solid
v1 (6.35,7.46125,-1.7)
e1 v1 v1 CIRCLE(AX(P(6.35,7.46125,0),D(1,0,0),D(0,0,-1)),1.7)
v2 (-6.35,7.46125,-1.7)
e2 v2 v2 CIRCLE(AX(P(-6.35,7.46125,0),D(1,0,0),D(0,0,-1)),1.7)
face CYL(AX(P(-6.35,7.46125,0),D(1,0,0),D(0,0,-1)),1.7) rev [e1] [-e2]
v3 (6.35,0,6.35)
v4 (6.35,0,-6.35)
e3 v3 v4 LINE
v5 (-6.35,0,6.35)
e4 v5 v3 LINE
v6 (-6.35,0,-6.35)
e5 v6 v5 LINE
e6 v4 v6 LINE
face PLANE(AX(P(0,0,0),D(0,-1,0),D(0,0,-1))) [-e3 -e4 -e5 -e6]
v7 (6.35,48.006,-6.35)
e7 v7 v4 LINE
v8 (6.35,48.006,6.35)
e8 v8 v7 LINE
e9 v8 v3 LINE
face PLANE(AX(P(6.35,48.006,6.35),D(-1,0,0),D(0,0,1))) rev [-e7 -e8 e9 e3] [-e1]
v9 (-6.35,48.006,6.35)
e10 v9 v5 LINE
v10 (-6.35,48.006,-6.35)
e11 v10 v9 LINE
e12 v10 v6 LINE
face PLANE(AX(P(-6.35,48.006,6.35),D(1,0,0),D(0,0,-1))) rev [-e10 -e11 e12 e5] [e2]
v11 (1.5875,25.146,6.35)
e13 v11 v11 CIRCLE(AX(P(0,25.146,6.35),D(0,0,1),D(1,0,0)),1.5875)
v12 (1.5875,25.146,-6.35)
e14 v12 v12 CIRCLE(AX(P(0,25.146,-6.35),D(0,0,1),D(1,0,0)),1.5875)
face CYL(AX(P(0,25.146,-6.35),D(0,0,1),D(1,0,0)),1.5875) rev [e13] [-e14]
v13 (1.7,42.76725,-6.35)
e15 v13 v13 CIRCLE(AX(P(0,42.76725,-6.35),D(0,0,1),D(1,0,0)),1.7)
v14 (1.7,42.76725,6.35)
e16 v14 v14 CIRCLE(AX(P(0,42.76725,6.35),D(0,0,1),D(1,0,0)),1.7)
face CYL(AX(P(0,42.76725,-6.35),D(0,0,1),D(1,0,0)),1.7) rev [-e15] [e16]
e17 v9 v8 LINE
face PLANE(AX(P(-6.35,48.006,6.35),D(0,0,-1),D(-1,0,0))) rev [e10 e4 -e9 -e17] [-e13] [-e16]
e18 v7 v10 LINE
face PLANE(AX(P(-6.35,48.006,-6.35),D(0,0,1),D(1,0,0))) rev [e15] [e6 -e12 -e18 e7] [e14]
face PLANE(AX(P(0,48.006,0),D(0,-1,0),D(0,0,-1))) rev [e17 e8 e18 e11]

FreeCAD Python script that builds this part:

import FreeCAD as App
import Part
import Sketcher
Q = App.Units.Quantity

doc = App.newDocument("Part")
params = doc.addObject("Spreadsheet::Sheet", "Params")
for row, (alias, value) in enumerate([
    ("sketch1_width", "0.5 in"),
    ("pad1_length", "1.89 in"),
    ("sketch2_diameter", "0.125 in"),
], start=1):
    params.set(f"A{row}", alias)
    params.set(f"B{row}", "=" + value)
    params.setAlias(f"B{row}", alias)

body = doc.addObject("PartDesign::Body", "Body")

# Sketch on XZ plane
sketch1 = doc.addObject("Sketcher::SketchObject", "Sketch")
body.addObject(sketch1)
sketch1.AttachmentSupport = (doc.XZ_Plane, [""])
sketch1.MapMode = "FlatFace"
sketch1.addGeometry(Part.LineSegment(App.Vector(-6.35, -6.35, 0), App.Vector(-6.35, 6.35, 0)), False)
sketch1.addGeometry(Part.LineSegment(App.Vector(-6.35, 6.35, 0), App.Vector(6.35, 6.35, 0)), False)
sketch1.addGeometry(Part.LineSegment(App.Vector(6.35, 6.35, 0), App.Vector(6.35, -6.35, 0)), False)
sketch1.addGeometry(Part.LineSegment(App.Vector(6.35, -6.35, 0), App.Vector(-6.35, -6.35, 0)), False)
sketch1.addConstraint(Sketcher.Constraint("Coincident", 0, 2, 1, 1))
sketch1.addConstraint(Sketcher.Constraint("Coincident", 1, 2, 2, 1))
sketch1.addConstraint(Sketcher.Constraint("Coincident", 2, 2, 3, 1))
sketch1.addConstraint(Sketcher.Constraint("Coincident", 3, 2, 0, 1))
sketch1.addConstraint(Sketcher.Constraint("Vertical", 0))
sketch1.addConstraint(Sketcher.Constraint("Horizontal", 1))
sketch1.addConstraint(Sketcher.Constraint("Vertical", 2))
sketch1.addConstraint(Sketcher.Constraint("Horizontal", 3))
sketch1.addConstraint(Sketcher.Constraint("Symmetric", 0, 2, 2, 2, -1, 1))
sketch1.addConstraint(Sketcher.Constraint("Equal", 3, 0))
sketch1.addConstraint(Sketcher.Constraint("DistanceX", 1, 1, 1, 2, Q("0.5 in")))
sketch1.setExpression("Constraints[10]", "Params.sketch1_width")
pad1 = doc.addObject("PartDesign::Pad", "Pad")
body.addObject(pad1)
pad1.Profile = sketch1
pad1.setExpression("Length", "Params.pad1_length")
pad1.Reversed = True

# Sketch on XY plane
sketch2 = doc.addObject("Sketcher::SketchObject", "Sketch001")
body.addObject(sketch2)
sketch2.AttachmentSupport = (doc.XY_Plane, [""])
sketch2.MapMode = "FlatFace"
sketch2.AttachmentOffset = App.Placement(App.Vector(0, 0, 0.25 * 25.4), App.Rotation())
sketch2.addGeometry(Part.Circle(App.Vector(0, 25.146, 0), App.Vector(0, 0, 1), 1.5875), False)
sketch2.addConstraint(Sketcher.Constraint("PointOnObject", 0, 3, -2))
sketch2.addConstraint(Sketcher.Constraint("Diameter", 0, Q("0.125 in")))
sketch2.addConstraint(Sketcher.Constraint("DistanceY", -1, 1, 0, 3, Q("0.99 in")))
sketch2.setExpression("Constraints[1]", "Params.sketch2_diameter")
pocket1 = doc.addObject("PartDesign::Pocket", "Pocket")
body.addObject(pocket1)
pocket1.Profile = sketch2
pocket1.Type = "ThroughAll"

# Sketch on XY plane
sketch3 = doc.addObject("Sketcher::SketchObject", "Sketch002")
body.addObject(sketch3)
sketch3.AttachmentSupport = (doc.XY_Plane, [""])
sketch3.MapMode = "FlatFace"
sketch3.AttachmentOffset = App.Placement(App.Vector(0, 0, 0.25 * 25.4), App.Rotation())
sketch3.addGeometry(Part.Circle(App.Vector(0, 42.76725, 0), App.Vector(0, 0, 1), 1.7), False)
sketch3.addConstraint(Sketcher.Constraint("PointOnObject", 0, 3, -2))
sketch3.addConstraint(Sketcher.Constraint("Diameter", 0, 3.4))
sketch3.addConstraint(Sketcher.Constraint("DistanceY", -1, 1, 0, 3, 42.76725))
pocket2 = doc.addObject("PartDesign::Pocket", "Pocket001")
body.addObject(pocket2)
pocket2.Profile = sketch3
pocket2.Type = "ThroughAll"

# Sketch on YZ plane
sketch4 = doc.addObject("Sketcher::SketchObject", "Sketch003")
body.addObject(sketch4)
sketch4.AttachmentSupport = (doc.YZ_Plane, [""])
sketch4.MapMode = "FlatFace"
sketch4.AttachmentOffset = App.Placement(App.Vector(0, 0, 0.25 * 25.4), App.Rotation())
sketch4.addGeometry(Part.Circle(App.Vector(7.46125, 0, 0), App.Vector(0, 0, 1), 1.7), False)
sketch4.addConstraint(Sketcher.Constraint("PointOnObject", 0, 3, -1))
sketch4.addConstraint(Sketcher.Constraint("Diameter", 0, 3.4))
sketch4.addConstraint(Sketcher.Constraint("DistanceX", -1, 1, 0, 3, 7.46125))
pocket3 = doc.addObject("PartDesign::Pocket", "Pocket002")
body.addObject(pocket3)
pocket3.Profile = sketch4
pocket3.Type = "ThroughAll"

doc.recompute()
